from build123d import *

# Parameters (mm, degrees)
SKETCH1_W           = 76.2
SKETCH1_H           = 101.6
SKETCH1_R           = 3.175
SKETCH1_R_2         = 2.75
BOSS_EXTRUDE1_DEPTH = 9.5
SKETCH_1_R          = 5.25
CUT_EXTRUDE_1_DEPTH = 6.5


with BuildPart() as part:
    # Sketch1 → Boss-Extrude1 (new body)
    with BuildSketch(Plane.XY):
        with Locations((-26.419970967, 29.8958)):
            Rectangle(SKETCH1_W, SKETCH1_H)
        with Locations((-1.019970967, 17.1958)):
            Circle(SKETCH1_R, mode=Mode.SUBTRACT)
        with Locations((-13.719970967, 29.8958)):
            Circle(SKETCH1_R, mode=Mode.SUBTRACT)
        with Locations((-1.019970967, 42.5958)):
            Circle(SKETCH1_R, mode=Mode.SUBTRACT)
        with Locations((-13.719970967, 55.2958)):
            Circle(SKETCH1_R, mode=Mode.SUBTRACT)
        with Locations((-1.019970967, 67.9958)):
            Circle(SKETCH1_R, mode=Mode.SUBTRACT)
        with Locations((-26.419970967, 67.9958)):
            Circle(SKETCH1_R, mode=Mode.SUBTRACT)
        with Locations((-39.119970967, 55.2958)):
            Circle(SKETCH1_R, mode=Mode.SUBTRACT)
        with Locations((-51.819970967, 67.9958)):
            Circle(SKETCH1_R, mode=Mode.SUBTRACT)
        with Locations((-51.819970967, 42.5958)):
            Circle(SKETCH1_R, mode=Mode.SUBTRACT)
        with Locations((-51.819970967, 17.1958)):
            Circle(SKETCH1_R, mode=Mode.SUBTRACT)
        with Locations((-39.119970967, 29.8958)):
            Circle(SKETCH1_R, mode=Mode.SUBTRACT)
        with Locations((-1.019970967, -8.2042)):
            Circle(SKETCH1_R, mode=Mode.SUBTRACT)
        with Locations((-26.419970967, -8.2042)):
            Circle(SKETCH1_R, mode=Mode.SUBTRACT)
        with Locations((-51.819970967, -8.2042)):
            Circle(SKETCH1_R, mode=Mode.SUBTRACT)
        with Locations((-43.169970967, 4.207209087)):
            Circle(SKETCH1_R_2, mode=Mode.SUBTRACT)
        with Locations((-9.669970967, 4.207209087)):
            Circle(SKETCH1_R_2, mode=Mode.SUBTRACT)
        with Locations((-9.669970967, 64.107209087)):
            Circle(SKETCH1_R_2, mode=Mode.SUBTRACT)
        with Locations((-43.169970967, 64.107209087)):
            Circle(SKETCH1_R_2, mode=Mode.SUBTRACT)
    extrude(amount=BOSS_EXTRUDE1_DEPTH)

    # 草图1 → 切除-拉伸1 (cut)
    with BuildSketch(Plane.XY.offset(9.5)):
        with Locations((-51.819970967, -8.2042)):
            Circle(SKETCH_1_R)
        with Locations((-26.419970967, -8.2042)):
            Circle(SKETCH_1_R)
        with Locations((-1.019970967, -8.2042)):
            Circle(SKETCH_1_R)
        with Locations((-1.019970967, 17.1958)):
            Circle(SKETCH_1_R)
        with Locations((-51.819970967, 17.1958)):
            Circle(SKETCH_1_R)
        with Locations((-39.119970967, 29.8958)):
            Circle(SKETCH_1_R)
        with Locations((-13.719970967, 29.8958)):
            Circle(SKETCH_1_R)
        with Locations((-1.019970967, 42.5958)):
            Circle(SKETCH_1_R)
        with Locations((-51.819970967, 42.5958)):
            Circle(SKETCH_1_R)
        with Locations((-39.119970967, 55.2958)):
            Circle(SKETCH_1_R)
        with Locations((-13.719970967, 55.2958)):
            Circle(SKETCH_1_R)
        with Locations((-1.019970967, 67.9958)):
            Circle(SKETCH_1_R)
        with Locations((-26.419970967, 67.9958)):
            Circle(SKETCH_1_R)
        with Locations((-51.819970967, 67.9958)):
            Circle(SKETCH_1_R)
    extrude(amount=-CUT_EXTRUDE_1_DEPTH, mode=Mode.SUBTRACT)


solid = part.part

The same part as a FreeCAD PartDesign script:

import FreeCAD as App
import Part
import Sketcher
Q = App.Units.Quantity

doc = App.newDocument("Part")
params = doc.addObject("Spreadsheet::Sheet", "Params")
for row, (alias, value) in enumerate([
    ("sketch1_diameter", "5.5 mm"),
    ("sketch1_diameter2", "6.35 mm"),
    ("sketch1_width", "76.2 mm"),
    ("sketch1_height", "101.6 mm"),
    ("pad1_length", "9.5 mm"),
    ("sketch2_diameter", "10.5 mm"),
    ("pocket1_length", "6.5 mm"),
], start=1):
    params.set(f"A{row}", alias)
    params.set(f"B{row}", "=" + value)
    params.setAlias(f"B{row}", alias)

body = doc.addObject("PartDesign::Body", "Body")

# Sketch on XY plane
sketch1 = body.newObject("Sketcher::SketchObject", "Sketch")
sketch1.AttachmentSupport = (doc.getObject("XY_Plane"), [""])
sketch1.MapMode = "FlatFace"
sketch1.addGeometry(Part.LineSegment(App.Vector(-64.5, 80.7, 0), App.Vector(-64.5, -20.9, 0)), False)
sketch1.addGeometry(Part.LineSegment(App.Vector(-64.5, -20.9, 0), App.Vector(11.7, -20.9, 0)), False)
sketch1.addGeometry(Part.LineSegment(App.Vector(11.7, -20.9, 0), App.Vector(11.7, 80.7, 0)), False)
sketch1.addGeometry(Part.LineSegment(App.Vector(11.7, 80.7, 0), App.Vector(-64.5, 80.7, 0)), False)
sketch1.addGeometry(Part.Circle(App.Vector(-51.8, -8.2, 0), App.Vector(0, 0, 1), 3.2), False)
sketch1.addGeometry(Part.Circle(App.Vector(-43.2, 4.2, 0), App.Vector(0, 0, 1), 2.8), False)
sketch1.addGeometry(Part.Circle(App.Vector(-51.8, 17.2, 0), App.Vector(0, 0, 1), 3.2), False)
sketch1.addGeometry(Part.Circle(App.Vector(-26.4, -8.2, 0), App.Vector(0, 0, 1), 3.2), False)
sketch1.addGeometry(Part.Circle(App.Vector(-1, -8.2, 0), App.Vector(0, 0, 1), 3.2), False)
sketch1.addGeometry(Part.Circle(App.Vector(-9.7, 4.2, 0), App.Vector(0, 0, 1), 2.8), False)
sketch1.addGeometry(Part.Circle(App.Vector(-1, 17.2, 0), App.Vector(0, 0, 1), 3.2), False)
sketch1.addGeometry(Part.Circle(App.Vector(-51.8, 42.6, 0), App.Vector(0, 0, 1), 3.2), False)
sketch1.addGeometry(Part.Circle(App.Vector(-39.1, 29.9, 0), App.Vector(0, 0, 1), 3.2), False)
sketch1.addGeometry(Part.Circle(App.Vector(-51.8, 68, 0), App.Vector(0, 0, 1), 3.2), False)
sketch1.addGeometry(Part.Circle(App.Vector(-43.2, 64.1, 0), App.Vector(0, 0, 1), 2.8), False)
sketch1.addGeometry(Part.Circle(App.Vector(-39.1, 55.3, 0), App.Vector(0, 0, 1), 3.2), False)
sketch1.addGeometry(Part.Circle(App.Vector(-13.7, 29.9, 0), App.Vector(0, 0, 1), 3.2), False)
sketch1.addGeometry(Part.Circle(App.Vector(-1, 42.6, 0), App.Vector(0, 0, 1), 3.2), False)
sketch1.addGeometry(Part.Circle(App.Vector(-13.7, 55.3, 0), App.Vector(0, 0, 1), 3.2), False)
sketch1.addGeometry(Part.Circle(App.Vector(-26.4, 68, 0), App.Vector(0, 0, 1), 3.2), False)
sketch1.addGeometry(Part.Circle(App.Vector(-9.7, 64.1, 0), App.Vector(0, 0, 1), 2.8), False)
sketch1.addGeometry(Part.Circle(App.Vector(-1, 68, 0), App.Vector(0, 0, 1), 3.2), False)
sketch1.addConstraint(Sketcher.Constraint("Coincident", 0, 2, 1, 1))
sketch1.addConstraint(Sketcher.Constraint("Coincident", 1, 2, 2, 1))
sketch1.addConstraint(Sketcher.Constraint("Coincident", 2, 2, 3, 1))
sketch1.addConstraint(Sketcher.Constraint("Coincident", 3, 2, 0, 1))
sketch1.addConstraint(Sketcher.Constraint("Vertical", 0))
sketch1.addConstraint(Sketcher.Constraint("Horizontal", 1))
sketch1.addConstraint(Sketcher.Constraint("Vertical", 2))
sketch1.addConstraint(Sketcher.Constraint("Horizontal", 3))
sketch1.addConstraint(Sketcher.Constraint("Equal", 4, 6))
sketch1.addConstraint(Sketcher.Constraint("Equal", 6, 7))
sketch1.addConstraint(Sketcher.Constraint("Equal", 7, 8))
sketch1.addConstraint(Sketcher.Constraint("Equal", 5, 9))
sketch1.addConstraint(Sketcher.Constraint("Equal", 8, 10))
sketch1.addConstraint(Sketcher.Constraint("Equal", 10, 11))
sketch1.addConstraint(Sketcher.Constraint("Equal", 11, 12))
sketch1.addConstraint(Sketcher.Constraint("Equal", 12, 13))
sketch1.addConstraint(Sketcher.Constraint("Equal", 9, 14))
sketch1.addConstraint(Sketcher.Constraint("Equal", 13, 15))
sketch1.addConstraint(Sketcher.Constraint("Equal", 15, 16))
sketch1.addConstraint(Sketcher.Constraint("Equal", 16, 17))
sketch1.addConstraint(Sketcher.Constraint("Equal", 17, 18))
sketch1.addConstraint(Sketcher.Constraint("Equal", 18, 19))
sketch1.addConstraint(Sketcher.Constraint("Equal", 14, 20))
sketch1.addConstraint(Sketcher.Constraint("Equal", 19, 21))
sketch1.addConstraint(Sketcher.Constraint("Horizontal", 4, 3, 7, 3))
sketch1.addConstraint(Sketcher.Constraint("Horizontal", 7, 3, 8, 3))
sketch1.addConstraint(Sketcher.Constraint("Horizontal", 5, 3, 9, 3))
sketch1.addConstraint(Sketcher.Constraint("Horizontal", 6, 3, 10, 3))
sketch1.addConstraint(Sketcher.Constraint("Horizontal", 12, 3, 16, 3))
sketch1.addConstraint(Sketcher.Constraint("Horizontal", 11, 3, 17, 3))
sketch1.addConstraint(Sketcher.Constraint("Horizontal", 15, 3, 18, 3))
sketch1.addConstraint(Sketcher.Constraint("Horizontal", 13, 3, 19, 3))
sketch1.addConstraint(Sketcher.Constraint("Horizontal", 14, 3, 20, 3))
sketch1.addConstraint(Sketcher.Constraint("Horizontal", 19, 3, 21, 3))
sketch1.addConstraint(Sketcher.Constraint("Vertical", 4, 3, 6, 3))
sketch1.addConstraint(Sketcher.Constraint("Vertical", 8, 3, 10, 3))
sketch1.addConstraint(Sketcher.Constraint("Vertical", 6, 3, 11, 3))
sketch1.addConstraint(Sketcher.Constraint("Vertical", 11, 3, 13, 3))
sketch1.addConstraint(Sketcher.Constraint("Vertical", 5, 3, 14, 3))
sketch1.addConstraint(Sketcher.Constraint("Vertical", 12, 3, 15, 3))
sketch1.addConstraint(Sketcher.Constraint("Vertical", 10, 3, 17, 3))
sketch1.addConstraint(Sketcher.Constraint("Vertical", 16, 3, 18, 3))
sketch1.addConstraint(Sketcher.Constraint("Vertical", 7, 3, 19, 3))
sketch1.addConstraint(Sketcher.Constraint("Vertical", 9, 3, 20, 3))
sketch1.addConstraint(Sketcher.Constraint("Vertical", 17, 3, 21, 3))
sketch1.addConstraint(Sketcher.Constraint("Diameter", 5, Q("5.5 mm")))
sketch1.addConstraint(Sketcher.Constraint("Diameter", 4, Q("6.35 mm")))
sketch1.addConstraint(Sketcher.Constraint("DistanceX", 1, 1, 1, 2, Q("76.2 mm")))
sketch1.addConstraint(Sketcher.Constraint("DistanceY", 0, 2, 0, 1, Q("101.6 mm")))
sketch1.addConstraint(Sketcher.Constraint("DistanceY", 4, 3, 6, 3, Q("25.4 mm")))
sketch1.addConstraint(Sketcher.Constraint("DistanceX", 4, 3, 7, 3, Q("25.4 mm")))
sketch1.addConstraint(Sketcher.Constraint("DistanceX", 7, 3, 8, 3, Q("25.4 mm")))
sketch1.addConstraint(Sketcher.Constraint("DistanceX", 5, 3, 9, 3, Q("33.5 mm")))
sketch1.addConstraint(Sketcher.Constraint("DistanceY", 6, 3, 11, 3, Q("25.4 mm")))
sketch1.addConstraint(Sketcher.Constraint("DistanceX", 11, 3, 12, 3, Q("12.7 mm")))
sketch1.addConstraint(Sketcher.Constraint("DistanceY", 12, 3, 11, 3, Q("12.7 mm")))
sketch1.addConstraint(Sketcher.Constraint("DistanceY", 11, 3, 13, 3, Q("25.4 mm")))
sketch1.addConstraint(Sketcher.Constraint("DistanceY", 5, 3, 14, 3, Q("59.9 mm")))
sketch1.addConstraint(Sketcher.Constraint("DistanceY", 11, 3, 15, 3, Q("12.7 mm")))
sketch1.addConstraint(Sketcher.Constraint("DistanceX", 16, 3, 10, 3, Q("12.7 mm")))
sketch1.addConstraint(Sketcher.Constraint("DistanceX", 0, 2, 4, 3, Q("12.7 mm")))
sketch1.addConstraint(Sketcher.Constraint("DistanceY", 0, 2, 4, 3, Q("12.7 mm")))
sketch1.addConstraint(Sketcher.Constraint("DistanceX", 4, 3, 5, 3, Q("8.65 mm")))
sketch1.addConstraint(Sketcher.Constraint("DistanceY", 4, 3, -1, 1, Q("8.2042 mm")))
sketch1.addConstraint(Sketcher.Constraint("DistanceX", 4, 3, -1, 1, Q("51.819971 mm")))
sketch1.addConstraint(Sketcher.Constraint("DistanceY", -1, 1, 5, 3, Q("4.207209 mm")))
sketch1.setExpression("Constraints[45]", "Params.sketch1_diameter")
sketch1.setExpression("Constraints[46]", "Params.sketch1_diameter2")
sketch1.setExpression("Constraints[47]", "Params.sketch1_width")
sketch1.setExpression("Constraints[48]", "Params.sketch1_height")
pad1 = body.newObject("PartDesign::Pad", "Pad")
pad1.Profile = sketch1
pad1.setExpression("Length", "Params.pad1_length")

# Sketch on XY plane
sketch2 = body.newObject("Sketcher::SketchObject", "Sketch001")
sketch2.AttachmentSupport = (doc.getObject("XY_Plane"), [""])
sketch2.MapMode = "FlatFace"
sketch2.AttachmentOffset = App.Placement(App.Vector(0, 0, 9.5), App.Rotation())
sketch2.addGeometry(Part.Circle(App.Vector(-52, -8, 0), App.Vector(0, 0, 1), 5), False)
sketch2.addGeometry(Part.Circle(App.Vector(-26, -8, 0), App.Vector(0, 0, 1), 5), False)
sketch2.addGeometry(Part.Circle(App.Vector(-1, -8, 0), App.Vector(0, 0, 1), 5), False)
sketch2.addGeometry(Part.Circle(App.Vector(-1, 17, 0), App.Vector(0, 0, 1), 5), False)
sketch2.addGeometry(Part.Circle(App.Vector(-52, 17, 0), App.Vector(0, 0, 1), 5), False)
sketch2.addGeometry(Part.Circle(App.Vector(-39, 30, 0), App.Vector(0, 0, 1), 5), False)
sketch2.addGeometry(Part.Circle(App.Vector(-14, 30, 0), App.Vector(0, 0, 1), 5), False)
sketch2.addGeometry(Part.Circle(App.Vector(-1, 43, 0), App.Vector(0, 0, 1), 5), False)
sketch2.addGeometry(Part.Circle(App.Vector(-52, 43, 0), App.Vector(0, 0, 1), 5), False)
sketch2.addGeometry(Part.Circle(App.Vector(-39, 55, 0), App.Vector(0, 0, 1), 5), False)
sketch2.addGeometry(Part.Circle(App.Vector(-14, 55, 0), App.Vector(0, 0, 1), 5), False)
sketch2.addGeometry(Part.Circle(App.Vector(-1, 68, 0), App.Vector(0, 0, 1), 5), False)
sketch2.addGeometry(Part.Circle(App.Vector(-26, 68, 0), App.Vector(0, 0, 1), 5), False)
sketch2.addGeometry(Part.Circle(App.Vector(-52, 68, 0), App.Vector(0, 0, 1), 5), False)
sketch2.addConstraint(Sketcher.Constraint("Equal", 0, 1))
sketch2.addConstraint(Sketcher.Constraint("Equal", 1, 2))
sketch2.addConstraint(Sketcher.Constraint("Equal", 2, 3))
sketch2.addConstraint(Sketcher.Constraint("Equal", 3, 4))
sketch2.addConstraint(Sketcher.Constraint("Equal", 4, 5))
sketch2.addConstraint(Sketcher.Constraint("Equal", 5, 6))
sketch2.addConstraint(Sketcher.Constraint("Equal", 6, 7))
sketch2.addConstraint(Sketcher.Constraint("Equal", 7, 8))
sketch2.addConstraint(Sketcher.Constraint("Equal", 8, 9))
sketch2.addConstraint(Sketcher.Constraint("Equal", 9, 10))
sketch2.addConstraint(Sketcher.Constraint("Equal", 10, 11))
sketch2.addConstraint(Sketcher.Constraint("Equal", 11, 12))
sketch2.addConstraint(Sketcher.Constraint("Equal", 12, 13))
sketch2.addConstraint(Sketcher.Constraint("Horizontal", 0, 3, 1, 3))
sketch2.addConstraint(Sketcher.Constraint("Horizontal", 1, 3, 2, 3))
sketch2.addConstraint(Sketcher.Constraint("Horizontal", 3, 3, 4, 3))
sketch2.addConstraint(Sketcher.Constraint("Horizontal", 5, 3, 6, 3))
sketch2.addConstraint(Sketcher.Constraint("Horizontal", 7, 3, 8, 3))
sketch2.addConstraint(Sketcher.Constraint("Horizontal", 9, 3, 10, 3))
sketch2.addConstraint(Sketcher.Constraint("Horizontal", 11, 3, 12, 3))
sketch2.addConstraint(Sketcher.Constraint("Horizontal", 12, 3, 13, 3))
sketch2.addConstraint(Sketcher.Constraint("Vertical", 2, 3, 3, 3))
sketch2.addConstraint(Sketcher.Constraint("Vertical", 0, 3, 4, 3))
sketch2.addConstraint(Sketcher.Constraint("Vertical", 3, 3, 7, 3))
sketch2.addConstraint(Sketcher.Constraint("Vertical", 4, 3, 8, 3))
sketch2.addConstraint(Sketcher.Constraint("Vertical", 5, 3, 9, 3))
sketch2.addConstraint(Sketcher.Constraint("Vertical", 6, 3, 10, 3))
sketch2.addConstraint(Sketcher.Constraint("Vertical", 7, 3, 11, 3))
sketch2.addConstraint(Sketcher.Constraint("Vertical", 1, 3, 12, 3))
sketch2.addConstraint(Sketcher.Constraint("Vertical", 8, 3, 13, 3))
sketch2.addConstraint(Sketcher.Constraint("Diameter", 0, Q("10.5 mm")))
sketch2.addConstraint(Sketcher.Constraint("DistanceX", 0, 3, 1, 3, Q("25.4 mm")))
sketch2.addConstraint(Sketcher.Constraint("DistanceX", 1, 3, 2, 3, Q("25.4 mm")))
sketch2.addConstraint(Sketcher.Constraint("DistanceY", 2, 3, 3, 3, Q("25.4 mm")))
sketch2.addConstraint(Sketcher.Constraint("DistanceX", 4, 3, 5, 3, Q("12.7 mm")))
sketch2.addConstraint(Sketcher.Constraint("DistanceY", 4, 3, 5, 3, Q("12.7 mm")))
sketch2.addConstraint(Sketcher.Constraint("DistanceX", 6, 3, 3, 3, Q("12.7 mm")))
sketch2.addConstraint(Sketcher.Constraint("DistanceY", 6, 3, 7, 3, Q("12.7 mm")))
sketch2.addConstraint(Sketcher.Constraint("DistanceY", 8, 3, 9, 3, Q("12.7 mm")))
sketch2.addConstraint(Sketcher.Constraint("DistanceY", 10, 3, 11, 3, Q("12.7 mm")))
sketch2.addConstraint(Sketcher.Constraint("DistanceY", 0, 3, -1, 1, Q("8.2042 mm")))
sketch2.addConstraint(Sketcher.Constraint("DistanceX", 0, 3, -1, 1, Q("51.819971 mm")))
sketch2.setExpression("Constraints[30]", "Params.sketch2_diameter")
pocket1 = body.newObject("PartDesign::Pocket", "Pocket")
pocket1.Profile = sketch2
pocket1.setExpression("Length", "Params.pocket1_length")

doc.recompute()
